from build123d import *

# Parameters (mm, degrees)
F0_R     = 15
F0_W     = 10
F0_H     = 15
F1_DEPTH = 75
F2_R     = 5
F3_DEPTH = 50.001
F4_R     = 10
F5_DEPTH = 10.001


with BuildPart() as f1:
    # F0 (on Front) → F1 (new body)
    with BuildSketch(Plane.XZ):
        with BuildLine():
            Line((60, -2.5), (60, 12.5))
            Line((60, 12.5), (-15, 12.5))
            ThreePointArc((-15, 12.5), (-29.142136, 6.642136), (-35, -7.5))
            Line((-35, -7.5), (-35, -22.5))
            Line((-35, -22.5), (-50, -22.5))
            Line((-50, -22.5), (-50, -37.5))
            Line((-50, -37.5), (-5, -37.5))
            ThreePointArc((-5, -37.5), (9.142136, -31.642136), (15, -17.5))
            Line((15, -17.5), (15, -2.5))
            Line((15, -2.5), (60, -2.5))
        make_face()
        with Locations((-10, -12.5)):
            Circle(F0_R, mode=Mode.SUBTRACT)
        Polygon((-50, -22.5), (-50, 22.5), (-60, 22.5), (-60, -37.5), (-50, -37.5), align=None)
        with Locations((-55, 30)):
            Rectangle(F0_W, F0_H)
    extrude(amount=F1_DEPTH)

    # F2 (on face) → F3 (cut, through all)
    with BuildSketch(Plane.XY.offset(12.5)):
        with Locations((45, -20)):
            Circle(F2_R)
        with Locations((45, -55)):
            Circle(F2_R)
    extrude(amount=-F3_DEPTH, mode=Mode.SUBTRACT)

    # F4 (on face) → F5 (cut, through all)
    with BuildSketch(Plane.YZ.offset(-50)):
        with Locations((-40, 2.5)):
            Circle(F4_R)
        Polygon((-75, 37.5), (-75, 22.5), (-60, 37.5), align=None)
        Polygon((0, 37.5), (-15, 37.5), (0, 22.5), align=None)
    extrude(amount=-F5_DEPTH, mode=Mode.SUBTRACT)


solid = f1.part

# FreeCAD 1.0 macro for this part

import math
import FreeCAD as App
import Part
import Sketcher


def add_polygon(sketch, points):
    """Adds a closed chain of lines whose ends are joined by coincident constraints."""
    first, n = sketch.GeometryCount, len(points)
    for a, b in zip(points, points[1:] + points[:1]):
        sketch.addGeometry(Part.LineSegment(App.Vector(*a, 0), App.Vector(*b, 0)), False)
    for i in range(n):
        sketch.addConstraint(Sketcher.Constraint("Coincident", first + i, 2, first + (i + 1) % n, 1))

doc = App.newDocument("Part")
body = doc.addObject("PartDesign::Body", "Body")

# Sketch on XZ plane
sketch1 = body.newObject("Sketcher::SketchObject", "Sketch")
sketch1.AttachmentSupport = (doc.getObject("XZ_Plane"), [""])
sketch1.MapMode = "FlatFace"
sketch1.addGeometry([
    Part.LineSegment(App.Vector(60, -2, 0), App.Vector(60, 12, 0)),  # 0
    Part.LineSegment(App.Vector(60, 12, 0), App.Vector(-15, 12, 0)),  # 1
    Part.ArcOfCircle(Part.Circle(App.Vector(-15, -7, 0), App.Vector(0, 0, 1), 20), math.radians(90), math.radians(180)),  # 2
    Part.LineSegment(App.Vector(-35, -8, 0), App.Vector(-35, -22, 0)),  # 3
    Part.LineSegment(App.Vector(-35, -22, 0), App.Vector(-50, -22, 0)),  # 4
    Part.LineSegment(App.Vector(-50, -22, 0), App.Vector(-50, 38, 0)),  # 5
    Part.LineSegment(App.Vector(-50, 38, 0), App.Vector(-60, 38, 0)),  # 6
    Part.LineSegment(App.Vector(-60, 38, 0), App.Vector(-60, -38, 0)),  # 7
    Part.LineSegment(App.Vector(-60, -38, 0), App.Vector(-5, -38, 0)),  # 8
    Part.ArcOfCircle(Part.Circle(App.Vector(-5, -18, 0), App.Vector(0, 0, 1), 20), math.radians(-90), math.radians(0)),  # 9
    Part.LineSegment(App.Vector(15, -18, 0), App.Vector(15, -2, 0)),  # 10
    Part.LineSegment(App.Vector(15, -2, 0), App.Vector(60, -2, 0)),  # 11
    Part.Circle(App.Vector(-10, -12, 0), App.Vector(0, 0, 1), 15),  # 12
], False)
sketch1.addConstraint([
    Sketcher.Constraint("Coincident", 0, 2, 1, 1),
    Sketcher.Constraint("Tangent", 1, 2, 2, 1),
    Sketcher.Constraint("Tangent", 2, 2, 3, 1),
    Sketcher.Constraint("Coincident", 3, 2, 4, 1),
    Sketcher.Constraint("Coincident", 4, 2, 5, 1),
    Sketcher.Constraint("Coincident", 5, 2, 6, 1),
    Sketcher.Constraint("Coincident", 6, 2, 7, 1),
    Sketcher.Constraint("Coincident", 7, 2, 8, 1),
    Sketcher.Constraint("Tangent", 8, 2, 9, 1),
    Sketcher.Constraint("Tangent", 9, 2, 10, 1),
    Sketcher.Constraint("Coincident", 10, 2, 11, 1),
    Sketcher.Constraint("Coincident", 11, 2, 0, 1),
    Sketcher.Constraint("Vertical", 0),
    Sketcher.Constraint("Horizontal", 1),
    Sketcher.Constraint("Vertical", 3),
    Sketcher.Constraint("Horizontal", 4),
    Sketcher.Constraint("Vertical", 5),
    Sketcher.Constraint("Horizontal", 6),
    Sketcher.Constraint("Vertical", 7),
    Sketcher.Constraint("Horizontal", 8),
    Sketcher.Constraint("Vertical", 10),
    Sketcher.Constraint("Horizontal", 11),
    Sketcher.Constraint("Equal", 2, 9),
    Sketcher.Constraint("Equal", 4, 0),
    Sketcher.Constraint("Equal", 0, 3),
    Sketcher.Constraint("Equal", 1, 7),
    Sketcher.Constraint("Equal", 3, 10),
    Sketcher.Constraint("Diameter", 12, 30.0),
    Sketcher.Constraint("Radius", 2, 19.999999),
    Sketcher.Constraint("DistanceX", 1, 2, 1, 1, 75.0),
    Sketcher.Constraint("DistanceX", 4, 2, 4, 1, 15.0),
    Sketcher.Constraint("DistanceX", 6, 2, 6, 1, 10.0),
    Sketcher.Constraint("DistanceX", 8, 1, 8, 2, 55.0),
    Sketcher.Constraint("DistanceX", 2, 3, -1, 1, 15.000001),
    Sketcher.Constraint("DistanceX", 12, 3, -1, 1, 10.0),
    Sketcher.Constraint("DistanceY", 12, 3, 2, 3, 5.000001),
    Sketcher.Constraint("DistanceY", 2, 3, -1, 1, 7.499999),
])
pad1 = body.newObject("PartDesign::Pad", "Pad")
pad1.Profile = sketch1
pad1.Length = 75

# Sketch on XY plane
sketch2 = body.newObject("Sketcher::SketchObject", "Sketch001")
sketch2.AttachmentSupport = (doc.getObject("XY_Plane"), [""])
sketch2.MapMode = "FlatFace"
sketch2.AttachmentOffset = App.Placement(App.Vector(0, 0, 12.5), App.Rotation())
sketch2.addGeometry([
    Part.Circle(App.Vector(45, -20, 0), App.Vector(0, 0, 1), 5),
    Part.Circle(App.Vector(45, -55, 0), App.Vector(0, 0, 1), 5),
], False)
sketch2.addConstraint([
    Sketcher.Constraint("Equal", 0, 1),
    Sketcher.Constraint("Vertical", 0, 3, 1, 3),
    Sketcher.Constraint("Diameter", 0, 10.0),
    Sketcher.Constraint("DistanceX", -1, 1, 0, 3, 45.0),
    Sketcher.Constraint("DistanceY", 0, 3, -1, 1, 20.0),
    Sketcher.Constraint("DistanceY", 1, 3, -1, 1, 55.0),
])
pocket1 = body.newObject("PartDesign::Pocket", "Pocket")
pocket1.Profile = sketch2
pocket1.Type = "ThroughAll"

# Sketch on YZ plane
sketch3 = body.newObject("Sketcher::SketchObject", "Sketch002")
sketch3.AttachmentSupport = (doc.getObject("YZ_Plane"), [""])
sketch3.MapMode = "FlatFace"
sketch3.AttachmentOffset = App.Placement(App.Vector(0, 0, -50), App.Rotation())
sketch3.addGeometry(Part.Circle(App.Vector(-40, 2, 0), App.Vector(0, 0, 1), 10), False)  # 0
add_polygon(sketch3, [(-75, 38), (-75, 22), (-60, 38)])  # lines 1-3
add_polygon(sketch3, [(0, 38), (-15, 38), (0, 22)])  # lines 4-6
sketch3.addConstraint([
    Sketcher.Constraint("Vertical", 1),
    Sketcher.Constraint("Horizontal", 3),
    Sketcher.Constraint("Horizontal", 4),
    Sketcher.Constraint("Vertical", 6),
    Sketcher.Constraint("PointOnObject", 5, 2, -2),
    Sketcher.Constraint("Perpendicular", 2, 5),
    Sketcher.Constraint("Horizontal", 3, 2, 4, 2),
    Sketcher.Constraint("Horizontal", 1, 2, 5, 2),
    Sketcher.Constraint("Equal", 3, 4),
    Sketcher.Constraint("Diameter", 0, 20.0),
    Sketcher.Constraint("DistanceX", 3, 2, 3, 1, 15.0),
    Sketcher.Constraint("DistanceX", 0, 3, -1, 1, 40.0),
    Sketcher.Constraint("DistanceX", 1, 2, -1, 1, 75.0),
    Sketcher.Constraint("DistanceY", 0, 3, 1, 2, 20.0),
    Sketcher.Constraint("DistanceY", -1, 1, 0, 3, 2.5),
])
pocket2 = body.newObject("PartDesign::Pocket", "Pocket001")
pocket2.Profile = sketch3
pocket2.Type = "ThroughAll"

doc.recompute()
